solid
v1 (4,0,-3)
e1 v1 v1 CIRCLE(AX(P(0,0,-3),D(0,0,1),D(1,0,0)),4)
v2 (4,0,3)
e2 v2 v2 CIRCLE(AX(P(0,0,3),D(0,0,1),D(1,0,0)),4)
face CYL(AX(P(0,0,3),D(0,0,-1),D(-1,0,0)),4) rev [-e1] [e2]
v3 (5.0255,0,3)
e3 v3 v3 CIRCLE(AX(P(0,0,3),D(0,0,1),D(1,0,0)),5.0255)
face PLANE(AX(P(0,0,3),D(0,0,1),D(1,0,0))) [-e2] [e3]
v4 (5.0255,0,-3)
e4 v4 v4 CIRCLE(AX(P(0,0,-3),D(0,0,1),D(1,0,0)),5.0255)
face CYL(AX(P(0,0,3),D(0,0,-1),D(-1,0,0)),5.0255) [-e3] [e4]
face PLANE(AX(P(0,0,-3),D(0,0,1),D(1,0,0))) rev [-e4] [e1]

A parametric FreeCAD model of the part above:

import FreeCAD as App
import Part
import Sketcher

V = App.Vector

doc = App.newDocument("Part")
params = doc.addObject("Spreadsheet::Sheet", "Params")
for row, (alias, value) in enumerate([
    ("sketch1_diameter", "8 mm"),
    ("pad1_length", "3 mm"),
    ("pad1_length2", "3 mm"),
], start=1):
    params.set(f"A{row}", alias)
    params.set(f"B{row}", "=" + value)
    params.setAlias(f"B{row}", alias)

body = doc.addObject("PartDesign::Body", "Body")

# Sketch on XY plane
sketch1 = doc.addObject("Sketcher::SketchObject", "Sketch")
body.addObject(sketch1)
sketch1.AttachmentSupport = (doc.XY_Plane, [""])
sketch1.MapMode = "FlatFace"
sketch1.addGeometry(Part.Circle(V(0, 0, 0), V(0, 0, 1), 5.0255), False)
sketch1.addGeometry(Part.Circle(V(0, 0, 0), V(0, 0, 1), 4), False)
sketch1.addConstraint(Sketcher.Constraint("Coincident", 0, 3, -1, 1))
sketch1.addConstraint(Sketcher.Constraint("Coincident", 1, 3, -1, 1))
sketch1.addConstraint(Sketcher.Constraint("Diameter", 1, 8.0))
sketch1.addConstraint(Sketcher.Constraint("Diameter", 0, 10.051))
sketch1.setExpression("Constraints[2]", "Params.sketch1_diameter")
pad1 = doc.addObject("PartDesign::Pad", "Pad")
body.addObject(pad1)
pad1.Profile = sketch1
pad1.Type = "TwoLengths"
pad1.setExpression("Length", "Params.pad1_length")
pad1.setExpression("Length2", "Params.pad1_length2")

doc.recompute()
